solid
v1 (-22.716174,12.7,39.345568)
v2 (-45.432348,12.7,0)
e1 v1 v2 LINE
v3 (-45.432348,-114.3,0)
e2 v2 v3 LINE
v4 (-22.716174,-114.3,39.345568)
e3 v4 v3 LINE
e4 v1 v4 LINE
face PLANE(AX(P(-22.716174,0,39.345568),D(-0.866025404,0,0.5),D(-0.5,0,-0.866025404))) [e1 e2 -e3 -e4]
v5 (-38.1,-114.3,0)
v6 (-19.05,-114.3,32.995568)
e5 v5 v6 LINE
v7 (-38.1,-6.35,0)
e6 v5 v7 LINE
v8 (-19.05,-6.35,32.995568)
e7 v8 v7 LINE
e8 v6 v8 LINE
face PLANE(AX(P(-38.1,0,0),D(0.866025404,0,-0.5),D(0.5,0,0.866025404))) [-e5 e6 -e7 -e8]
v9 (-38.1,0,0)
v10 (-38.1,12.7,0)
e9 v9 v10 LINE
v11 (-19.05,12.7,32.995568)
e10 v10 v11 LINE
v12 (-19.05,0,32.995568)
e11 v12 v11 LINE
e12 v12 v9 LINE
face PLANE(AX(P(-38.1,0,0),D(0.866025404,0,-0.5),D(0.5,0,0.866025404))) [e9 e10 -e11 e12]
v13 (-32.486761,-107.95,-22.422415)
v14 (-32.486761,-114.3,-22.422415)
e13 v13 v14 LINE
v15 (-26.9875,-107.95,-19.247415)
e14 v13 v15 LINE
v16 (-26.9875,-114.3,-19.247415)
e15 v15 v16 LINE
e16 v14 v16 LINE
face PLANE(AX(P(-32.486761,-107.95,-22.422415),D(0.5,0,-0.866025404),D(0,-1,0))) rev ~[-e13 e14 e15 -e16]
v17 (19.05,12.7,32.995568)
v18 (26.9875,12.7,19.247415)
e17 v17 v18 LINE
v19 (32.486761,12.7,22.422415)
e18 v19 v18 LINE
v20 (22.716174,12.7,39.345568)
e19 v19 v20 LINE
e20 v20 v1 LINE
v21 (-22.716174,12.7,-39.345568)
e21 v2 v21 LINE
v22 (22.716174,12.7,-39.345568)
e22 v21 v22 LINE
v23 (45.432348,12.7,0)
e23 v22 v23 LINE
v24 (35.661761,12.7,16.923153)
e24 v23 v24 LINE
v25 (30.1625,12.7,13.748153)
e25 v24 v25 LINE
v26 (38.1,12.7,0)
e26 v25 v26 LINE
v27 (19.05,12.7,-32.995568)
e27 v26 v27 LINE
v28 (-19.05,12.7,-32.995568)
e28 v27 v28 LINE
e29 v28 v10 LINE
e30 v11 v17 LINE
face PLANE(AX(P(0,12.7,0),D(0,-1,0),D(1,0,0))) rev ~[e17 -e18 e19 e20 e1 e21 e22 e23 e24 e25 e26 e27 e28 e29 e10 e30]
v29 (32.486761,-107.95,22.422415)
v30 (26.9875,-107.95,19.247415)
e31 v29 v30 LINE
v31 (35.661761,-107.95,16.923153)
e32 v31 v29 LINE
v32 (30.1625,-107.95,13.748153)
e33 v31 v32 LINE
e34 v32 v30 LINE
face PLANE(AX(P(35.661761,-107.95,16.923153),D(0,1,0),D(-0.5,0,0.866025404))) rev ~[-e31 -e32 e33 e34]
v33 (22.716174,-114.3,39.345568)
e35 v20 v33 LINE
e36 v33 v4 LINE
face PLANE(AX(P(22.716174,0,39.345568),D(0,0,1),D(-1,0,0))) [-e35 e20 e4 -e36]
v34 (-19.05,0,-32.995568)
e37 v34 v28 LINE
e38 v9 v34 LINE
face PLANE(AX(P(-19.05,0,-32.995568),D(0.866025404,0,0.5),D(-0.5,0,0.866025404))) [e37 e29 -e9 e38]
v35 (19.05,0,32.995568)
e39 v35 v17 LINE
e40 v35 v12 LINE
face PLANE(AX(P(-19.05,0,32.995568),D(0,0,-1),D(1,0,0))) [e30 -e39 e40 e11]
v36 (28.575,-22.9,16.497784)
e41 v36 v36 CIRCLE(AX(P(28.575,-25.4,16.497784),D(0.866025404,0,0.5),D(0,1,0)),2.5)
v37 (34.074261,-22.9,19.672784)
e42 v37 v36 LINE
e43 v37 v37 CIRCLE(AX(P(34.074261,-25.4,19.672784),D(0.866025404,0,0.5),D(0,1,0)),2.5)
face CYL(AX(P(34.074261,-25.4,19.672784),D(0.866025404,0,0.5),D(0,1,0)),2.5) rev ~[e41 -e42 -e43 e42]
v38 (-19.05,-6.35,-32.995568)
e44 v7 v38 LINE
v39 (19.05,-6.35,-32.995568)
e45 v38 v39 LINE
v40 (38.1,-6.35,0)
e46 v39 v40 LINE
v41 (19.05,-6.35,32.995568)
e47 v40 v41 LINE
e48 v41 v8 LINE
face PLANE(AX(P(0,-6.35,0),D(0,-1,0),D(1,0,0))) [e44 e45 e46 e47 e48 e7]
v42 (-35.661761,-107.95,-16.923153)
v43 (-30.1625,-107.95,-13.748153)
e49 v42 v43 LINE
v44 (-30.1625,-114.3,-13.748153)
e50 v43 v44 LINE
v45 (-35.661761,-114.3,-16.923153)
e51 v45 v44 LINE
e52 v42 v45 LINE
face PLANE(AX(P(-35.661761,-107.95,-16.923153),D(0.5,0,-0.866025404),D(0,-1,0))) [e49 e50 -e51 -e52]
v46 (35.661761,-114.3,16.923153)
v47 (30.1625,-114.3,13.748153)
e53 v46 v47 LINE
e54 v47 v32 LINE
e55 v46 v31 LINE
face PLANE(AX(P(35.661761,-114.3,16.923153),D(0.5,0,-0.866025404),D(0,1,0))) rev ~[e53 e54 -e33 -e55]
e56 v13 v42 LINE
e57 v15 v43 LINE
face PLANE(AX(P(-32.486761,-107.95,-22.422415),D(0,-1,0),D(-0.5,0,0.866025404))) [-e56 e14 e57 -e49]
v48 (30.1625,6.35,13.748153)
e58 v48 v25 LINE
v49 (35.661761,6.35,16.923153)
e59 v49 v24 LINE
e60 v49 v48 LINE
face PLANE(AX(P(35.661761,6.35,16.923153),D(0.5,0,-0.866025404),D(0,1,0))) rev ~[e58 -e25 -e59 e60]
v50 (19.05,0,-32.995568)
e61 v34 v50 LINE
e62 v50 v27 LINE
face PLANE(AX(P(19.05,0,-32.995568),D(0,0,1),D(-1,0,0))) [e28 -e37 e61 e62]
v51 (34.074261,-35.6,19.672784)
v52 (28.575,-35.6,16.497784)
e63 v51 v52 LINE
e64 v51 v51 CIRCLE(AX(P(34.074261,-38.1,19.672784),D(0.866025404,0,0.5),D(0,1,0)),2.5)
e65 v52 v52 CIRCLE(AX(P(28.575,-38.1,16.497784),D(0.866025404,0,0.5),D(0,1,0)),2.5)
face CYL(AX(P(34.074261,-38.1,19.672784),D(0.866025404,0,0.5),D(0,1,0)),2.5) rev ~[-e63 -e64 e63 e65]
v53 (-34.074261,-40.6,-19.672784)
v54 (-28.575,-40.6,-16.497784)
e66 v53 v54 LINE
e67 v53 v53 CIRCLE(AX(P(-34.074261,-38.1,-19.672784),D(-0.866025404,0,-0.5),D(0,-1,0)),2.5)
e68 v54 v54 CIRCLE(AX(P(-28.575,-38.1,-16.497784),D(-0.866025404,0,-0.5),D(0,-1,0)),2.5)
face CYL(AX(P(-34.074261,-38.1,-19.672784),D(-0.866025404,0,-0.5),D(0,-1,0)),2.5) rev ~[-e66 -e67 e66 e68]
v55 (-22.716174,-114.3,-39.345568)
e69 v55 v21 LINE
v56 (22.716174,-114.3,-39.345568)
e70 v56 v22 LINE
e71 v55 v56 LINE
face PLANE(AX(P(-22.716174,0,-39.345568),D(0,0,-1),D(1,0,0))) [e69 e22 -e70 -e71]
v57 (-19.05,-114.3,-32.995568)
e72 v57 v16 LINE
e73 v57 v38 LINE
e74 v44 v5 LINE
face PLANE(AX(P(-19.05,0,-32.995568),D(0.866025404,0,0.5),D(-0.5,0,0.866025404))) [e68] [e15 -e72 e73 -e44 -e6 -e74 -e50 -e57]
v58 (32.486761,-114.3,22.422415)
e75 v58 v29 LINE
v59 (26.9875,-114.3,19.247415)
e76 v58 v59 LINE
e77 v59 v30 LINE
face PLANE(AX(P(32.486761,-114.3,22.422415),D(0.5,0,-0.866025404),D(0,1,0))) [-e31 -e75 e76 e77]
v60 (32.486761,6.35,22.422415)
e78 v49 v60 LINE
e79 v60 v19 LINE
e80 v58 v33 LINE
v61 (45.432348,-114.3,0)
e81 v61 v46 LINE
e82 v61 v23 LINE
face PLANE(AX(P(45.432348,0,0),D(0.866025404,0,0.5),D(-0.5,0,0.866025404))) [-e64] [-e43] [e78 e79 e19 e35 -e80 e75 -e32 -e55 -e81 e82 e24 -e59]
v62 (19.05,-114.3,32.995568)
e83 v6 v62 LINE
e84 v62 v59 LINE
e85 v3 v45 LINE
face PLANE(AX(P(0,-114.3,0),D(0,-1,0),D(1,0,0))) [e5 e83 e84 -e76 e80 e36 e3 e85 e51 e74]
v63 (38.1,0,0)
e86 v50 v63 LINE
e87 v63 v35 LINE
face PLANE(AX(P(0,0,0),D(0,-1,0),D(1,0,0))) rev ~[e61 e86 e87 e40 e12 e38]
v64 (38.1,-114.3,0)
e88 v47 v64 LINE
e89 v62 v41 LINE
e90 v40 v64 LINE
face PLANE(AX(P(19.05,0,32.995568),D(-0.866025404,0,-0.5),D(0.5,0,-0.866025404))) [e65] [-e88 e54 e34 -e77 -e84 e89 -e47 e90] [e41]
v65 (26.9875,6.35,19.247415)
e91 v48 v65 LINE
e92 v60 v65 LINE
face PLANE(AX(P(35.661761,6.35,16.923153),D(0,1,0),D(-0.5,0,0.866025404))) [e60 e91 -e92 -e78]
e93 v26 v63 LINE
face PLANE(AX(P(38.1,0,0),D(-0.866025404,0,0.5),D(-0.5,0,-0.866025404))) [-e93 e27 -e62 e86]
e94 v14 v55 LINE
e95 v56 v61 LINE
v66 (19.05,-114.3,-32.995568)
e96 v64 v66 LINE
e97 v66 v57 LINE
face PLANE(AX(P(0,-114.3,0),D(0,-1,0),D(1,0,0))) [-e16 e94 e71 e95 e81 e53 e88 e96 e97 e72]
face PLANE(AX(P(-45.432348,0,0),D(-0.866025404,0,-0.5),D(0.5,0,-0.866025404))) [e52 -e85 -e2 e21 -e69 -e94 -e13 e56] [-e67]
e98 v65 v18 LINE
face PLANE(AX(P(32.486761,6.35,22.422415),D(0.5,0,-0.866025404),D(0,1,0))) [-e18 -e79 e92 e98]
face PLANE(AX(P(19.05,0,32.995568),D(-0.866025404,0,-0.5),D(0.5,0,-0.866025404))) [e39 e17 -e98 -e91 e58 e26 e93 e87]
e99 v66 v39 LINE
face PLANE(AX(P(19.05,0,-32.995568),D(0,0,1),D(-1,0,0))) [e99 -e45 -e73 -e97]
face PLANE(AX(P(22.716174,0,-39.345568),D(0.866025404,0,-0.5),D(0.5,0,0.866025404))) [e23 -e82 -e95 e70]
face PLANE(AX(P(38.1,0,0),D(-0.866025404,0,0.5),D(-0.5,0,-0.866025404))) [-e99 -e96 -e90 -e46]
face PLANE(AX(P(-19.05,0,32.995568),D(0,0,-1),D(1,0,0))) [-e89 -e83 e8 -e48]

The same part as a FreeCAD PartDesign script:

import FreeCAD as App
import Part
import Sketcher

V = App.Vector
Q = App.Units.Quantity

doc = App.newDocument("Part")
body = doc.addObject("PartDesign::Body", "Body")

# Sketch on XZ plane
sketch1 = body.newObject("Sketcher::SketchObject", "Sketch")
sketch1.AttachmentSupport = (doc.getObject("XZ_Plane"), [""])
sketch1.MapMode = "FlatFace"
sketch1.addGeometry([
    Part.LineSegment(V(45.432348, 0, 0), V(22.716174, 39.345568, 0)),  # 0
    Part.LineSegment(V(22.716174, 39.345568, 0), V(-22.716174, 39.345568, 0)),  # 1
    Part.LineSegment(V(-22.716174, 39.345568, 0), V(-45.432348, 0, 0)),  # 2
    Part.LineSegment(V(-45.432348, 0, 0), V(-22.716174, -39.345568, 0)),  # 3
    Part.LineSegment(V(-22.716174, -39.345568, 0), V(22.716174, -39.345568, 0)),  # 4
    Part.LineSegment(V(22.716174, -39.345568, 0), V(45.432348, 0, 0)),  # 5
    Part.LineSegment(V(19.05, 32.995568, 0), V(38.1, 0, 0)),  # 6
    Part.LineSegment(V(38.1, 0, 0), V(19.05, -32.995568, 0)),  # 7
    Part.LineSegment(V(19.05, -32.995568, 0), V(-19.05, -32.995568, 0)),  # 8
    Part.LineSegment(V(-19.05, -32.995568, 0), V(-38.1, 0, 0)),  # 9
    Part.LineSegment(V(-38.1, 0, 0), V(-19.05, 32.995568, 0)),  # 10
    Part.LineSegment(V(-19.05, 32.995568, 0), V(19.05, 32.995568, 0)),  # 11
], False)
sketch1.addConstraint([
    Sketcher.Constraint("Coincident", 0, 2, 1, 1),
    Sketcher.Constraint("Coincident", 1, 2, 2, 1),
    Sketcher.Constraint("Coincident", 2, 2, 3, 1),
    Sketcher.Constraint("Coincident", 3, 2, 4, 1),
    Sketcher.Constraint("Coincident", 4, 2, 5, 1),
    Sketcher.Constraint("Coincident", 5, 2, 0, 1),
    Sketcher.Constraint("Coincident", 6, 2, 7, 1),
    Sketcher.Constraint("Coincident", 7, 2, 8, 1),
    Sketcher.Constraint("Coincident", 8, 2, 9, 1),
    Sketcher.Constraint("Coincident", 9, 2, 10, 1),
    Sketcher.Constraint("Coincident", 10, 2, 11, 1),
    Sketcher.Constraint("Coincident", 11, 2, 6, 1),
    Sketcher.Constraint("Horizontal", 1),
    Sketcher.Constraint("Horizontal", 4),
    Sketcher.Constraint("Horizontal", 8),
    Sketcher.Constraint("Horizontal", 11),
    Sketcher.Constraint("Symmetric", 0, 2, 3, 2, -1, 1),
    Sketcher.Constraint("Symmetric", 2, 2, 5, 2, -1, 1),
    Sketcher.Constraint("Symmetric", 6, 2, 9, 2, -1, 1),
    Sketcher.Constraint("Symmetric", 7, 2, 10, 2, -1, 1),
    Sketcher.Constraint("PointOnObject", 2, 2, -1),
    Sketcher.Constraint("PointOnObject", 6, 2, -1),
    Sketcher.Constraint("Parallel", 2, 5),
    Sketcher.Constraint("Parallel", 3, 6),
    Sketcher.Constraint("Parallel", 5, 7),
    Sketcher.Constraint("Parallel", 6, 9),
    Sketcher.Constraint("Vertical", 1, 2, 3, 2),
    Sketcher.Constraint("DistanceX", 8, 2, 8, 1, Q("1.5 in")),
    Sketcher.Constraint("Angle", 0, Q("120 deg")),
    Sketcher.Constraint("Distance", 6, Q("1.5 in")),
    Sketcher.Constraint("DistanceY", 4, 2, 7, 2, Q("0.25 in")),
    Sketcher.Constraint("DistanceX", 1, 2, 1, 1, Q("45.432348 mm")),
])
pad1 = body.newObject("PartDesign::Pad", "Pad")
pad1.Profile = sketch1
pad1.Length = Q("4.5 in")

# Sketch on XZ plane
sketch2 = body.newObject("Sketcher::SketchObject", "Sketch001")
sketch2.AttachmentSupport = (doc.getObject("XZ_Plane"), [""])
sketch2.MapMode = "FlatFace"
sketch2.addGeometry([
    Part.LineSegment(V(45.432348, 0, 0), V(22.716174, 39.345568, 0)),  # 0
    Part.LineSegment(V(22.716174, 39.345568, 0), V(-22.716174, 39.345568, 0)),  # 1
    Part.LineSegment(V(-22.716174, 39.345568, 0), V(-45.432348, 0, 0)),  # 2
    Part.LineSegment(V(-45.432348, 0, 0), V(-22.716174, -39.345568, 0)),  # 3
    Part.LineSegment(V(-22.716174, -39.345568, 0), V(22.716174, -39.345568, 0)),  # 4
    Part.LineSegment(V(22.716174, -39.345568, 0), V(45.432348, 0, 0)),  # 5
    Part.LineSegment(V(19.05, 32.995568, 0), V(38.1, 0, 0)),  # 6
    Part.LineSegment(V(38.1, 0, 0), V(19.05, -32.995568, 0)),  # 7
    Part.LineSegment(V(19.05, -32.995568, 0), V(-19.05, -32.995568, 0)),  # 8
    Part.LineSegment(V(-19.05, -32.995568, 0), V(-38.1, 0, 0)),  # 9
    Part.LineSegment(V(-38.1, 0, 0), V(-19.05, 32.995568, 0)),  # 10
    Part.LineSegment(V(-19.05, 32.995568, 0), V(19.05, 32.995568, 0)),  # 11
], False)
sketch2.addConstraint([
    Sketcher.Constraint("Coincident", 0, 2, 1, 1),
    Sketcher.Constraint("Coincident", 1, 2, 2, 1),
    Sketcher.Constraint("Coincident", 2, 2, 3, 1),
    Sketcher.Constraint("Coincident", 3, 2, 4, 1),
    Sketcher.Constraint("Coincident", 4, 2, 5, 1),
    Sketcher.Constraint("Coincident", 5, 2, 0, 1),
    Sketcher.Constraint("Coincident", 6, 2, 7, 1),
    Sketcher.Constraint("Coincident", 7, 2, 8, 1),
    Sketcher.Constraint("Coincident", 8, 2, 9, 1),
    Sketcher.Constraint("Coincident", 9, 2, 10, 1),
    Sketcher.Constraint("Coincident", 10, 2, 11, 1),
    Sketcher.Constraint("Coincident", 11, 2, 6, 1),
    Sketcher.Constraint("Horizontal", 1),
    Sketcher.Constraint("Horizontal", 4),
    Sketcher.Constraint("Horizontal", 8),
    Sketcher.Constraint("Horizontal", 11),
    Sketcher.Constraint("Symmetric", 0, 2, 3, 2, -1, 1),
    Sketcher.Constraint("Symmetric", 2, 2, 5, 2, -1, 1),
    Sketcher.Constraint("Symmetric", 6, 2, 9, 2, -1, 1),
    Sketcher.Constraint("Symmetric", 7, 2, 10, 2, -1, 1),
    Sketcher.Constraint("PointOnObject", 2, 2, -1),
    Sketcher.Constraint("PointOnObject", 6, 2, -1),
    Sketcher.Constraint("Parallel", 2, 5),
    Sketcher.Constraint("Parallel", 3, 6),
    Sketcher.Constraint("Parallel", 5, 7),
    Sketcher.Constraint("Parallel", 6, 9),
    Sketcher.Constraint("Vertical", 1, 2, 3, 2),
    Sketcher.Constraint("DistanceX", 8, 2, 8, 1, Q("1.5 in")),
    Sketcher.Constraint("Angle", 0, Q("120 deg")),
    Sketcher.Constraint("Distance", 6, Q("1.5 in")),
    Sketcher.Constraint("DistanceY", 4, 2, 7, 2, Q("0.25 in")),
    Sketcher.Constraint("DistanceX", 1, 2, 1, 1, Q("45.432348 mm")),
])
pad2 = body.newObject("PartDesign::Pad", "Pad001")
pad2.Profile = sketch2
pad2.Length = Q("0.5 in")
pad2.Reversed = True

# Sketch on XZ plane
sketch3 = body.newObject("Sketcher::SketchObject", "Sketch002")
sketch3.AttachmentSupport = (doc.getObject("XZ_Plane"), [""])
sketch3.MapMode = "FlatFace"
sketch3.addGeometry([
    Part.LineSegment(V(19.05, -32.995568, 0), V(38.1, 0, 0)),  # 0
    Part.LineSegment(V(38.1, 0, 0), V(19.05, 32.995568, 0)),  # 1
    Part.LineSegment(V(19.05, 32.995568, 0), V(-19.05, 32.995568, 0)),  # 2
    Part.LineSegment(V(-19.05, 32.995568, 0), V(-38.1, 0, 0)),  # 3
    Part.LineSegment(V(-38.1, 0, 0), V(-19.05, -32.995568, 0)),  # 4
    Part.LineSegment(V(-19.05, -32.995568, 0), V(19.05, -32.995568, 0)),  # 5
], False)
sketch3.addConstraint([
    Sketcher.Constraint("Coincident", 0, 2, 1, 1),
    Sketcher.Constraint("Coincident", 1, 2, 2, 1),
    Sketcher.Constraint("Coincident", 2, 2, 3, 1),
    Sketcher.Constraint("Coincident", 3, 2, 4, 1),
    Sketcher.Constraint("Coincident", 4, 2, 5, 1),
    Sketcher.Constraint("Coincident", 5, 2, 0, 1),
    Sketcher.Constraint("Horizontal", 2),
    Sketcher.Constraint("Horizontal", 5),
    Sketcher.Constraint("Symmetric", 0, 2, 3, 2, -1, 1),
    Sketcher.Constraint("Symmetric", 1, 2, 4, 2, -1, 1),
    Sketcher.Constraint("PointOnObject", 0, 2, -1),
    Sketcher.Constraint("Parallel", 0, 3),
    Sketcher.Constraint("Vertical", 2, 2, 4, 2),
    Sketcher.Constraint("DistanceX", 2, 2, 2, 1, Q("1.5 in")),
    Sketcher.Constraint("Angle", 0, Q("60 deg")),
    Sketcher.Constraint("DistanceX", 3, 2, 0, 2, Q("3 in")),
])
pad3 = body.newObject("PartDesign::Pad", "Pad002")
pad3.Profile = sketch3
pad3.Length = Q("0.25 in")

# Sketch on an angled plane
sketch4 = body.newObject("Sketcher::SketchObject", "Sketch003")
sketch4.Placement = App.Placement(V(34.074261, 0, 19.672784), App.Rotation(V(0, 1, 0), V(-0.5, 0, 0.866025404), V(0.866025404, 0, 0.5), "ZXY"))
sketch4.addGeometry([
    Part.LineSegment(V(-114.3, 3.175, 0), V(-114.3, -3.175, 0)),
    Part.LineSegment(V(-114.3, -3.175, 0), V(-107.95, -3.175, 0)),
    Part.LineSegment(V(-107.95, -3.175, 0), V(-107.95, 3.175, 0)),
    Part.LineSegment(V(-107.95, 3.175, 0), V(-114.3, 3.175, 0)),
], False)
sketch4.addConstraint([
    Sketcher.Constraint("Coincident", 0, 2, 1, 1),
    Sketcher.Constraint("Coincident", 1, 2, 2, 1),
    Sketcher.Constraint("Coincident", 2, 2, 3, 1),
    Sketcher.Constraint("Coincident", 3, 2, 0, 1),
    Sketcher.Constraint("Vertical", 0),
    Sketcher.Constraint("Horizontal", 1),
    Sketcher.Constraint("Vertical", 2),
    Sketcher.Constraint("Horizontal", 3),
    Sketcher.Constraint("Equal", 3, 0),
    Sketcher.Constraint("DistanceX", 1, 1, 1, 2, Q("0.25 in")),
    Sketcher.Constraint("DistanceX", 0, 2, -1, 1, Q("4.5 in")),
    Sketcher.Constraint("DistanceY", 0, 2, -1, 1, Q("0.125 in")),
])
pocket1 = body.newObject("PartDesign::Pocket", "Pocket")
pocket1.Profile = sketch4
pocket1.Length = Q("0.25 in")

# Sketch on an angled plane
sketch5 = body.newObject("Sketcher::SketchObject", "Sketch004")
sketch5.Placement = App.Placement(V(-34.074261, 0, -19.672784), App.Rotation(V(0, -1, 0), V(-0.5, 0, 0.866025404), V(-0.866025404, 0, -0.5), "ZXY"))
sketch5.addGeometry([
    Part.LineSegment(V(107.95, 3.175, 0), V(107.95, -3.175, 0)),
    Part.LineSegment(V(107.95, -3.175, 0), V(114.3, -3.175, 0)),
    Part.LineSegment(V(114.3, -3.175, 0), V(114.3, 3.175, 0)),
    Part.LineSegment(V(114.3, 3.175, 0), V(107.95, 3.175, 0)),
], False)
sketch5.addConstraint([
    Sketcher.Constraint("Coincident", 0, 2, 1, 1),
    Sketcher.Constraint("Coincident", 1, 2, 2, 1),
    Sketcher.Constraint("Coincident", 2, 2, 3, 1),
    Sketcher.Constraint("Coincident", 3, 2, 0, 1),
    Sketcher.Constraint("Vertical", 0),
    Sketcher.Constraint("Horizontal", 1),
    Sketcher.Constraint("Vertical", 2),
    Sketcher.Constraint("Horizontal", 3),
    Sketcher.Constraint("Equal", 3, 0),
    Sketcher.Constraint("DistanceX", 1, 1, 1, 2, Q("0.25 in")),
    Sketcher.Constraint("DistanceX", -1, 1, 1, 2, Q("4.5 in")),
    Sketcher.Constraint("DistanceY", 0, 2, -1, 1, Q("0.125 in")),
])
pocket2 = body.newObject("PartDesign::Pocket", "Pocket001")
pocket2.Profile = sketch5
pocket2.Length = Q("0.25 in")

# Sketch on an angled plane
sketch6 = body.newObject("Sketcher::SketchObject", "Sketch005")
sketch6.Placement = App.Placement(V(-34.074261, 0, -19.672784), App.Rotation(V(0, -1, 0), V(-0.5, 0, 0.866025404), V(-0.866025404, 0, -0.5), "ZXY"))
sketch6.addGeometry(Part.Circle(V(38.1, 0, 0), V(0, 0, 1), 2.5), False)
sketch6.addConstraint([
    Sketcher.Constraint("PointOnObject", 0, 3, -1),
    Sketcher.Constraint("DistanceX", -1, 1, 0, 3, Q("1.5 in")),
    Sketcher.Constraint("Diameter", 0, Q("5 mm")),
])
pocket3 = body.newObject("PartDesign::Pocket", "Pocket002")
pocket3.Profile = sketch6
pocket3.Length = Q("0.25 in")

# Sketch on an angled plane
sketch7 = body.newObject("Sketcher::SketchObject", "Sketch006")
sketch7.Placement = App.Placement(V(34.074261, 0, 19.672784), App.Rotation(V(0, 1, 0), V(-0.5, 0, 0.866025404), V(0.866025404, 0, 0.5), "ZXY"))
sketch7.addGeometry([
    Part.Circle(V(-38.1, 0, 0), V(0, 0, 1), 2.5),
    Part.Circle(V(-25.4, 0, 0), V(0, 0, 1), 2.5),
], False)
sketch7.addConstraint([
    Sketcher.Constraint("Equal", 0, 1),
    Sketcher.Constraint("PointOnObject", 0, 3, -1),
    Sketcher.Constraint("PointOnObject", 1, 3, -1),
    Sketcher.Constraint("DistanceX", 1, 3, -1, 1, Q("1 in")),
    Sketcher.Constraint("DistanceX", 0, 3, -1, 1, Q("1.5 in")),
    Sketcher.Constraint("Diameter", 0, Q("5 mm")),
])
pocket4 = body.newObject("PartDesign::Pocket", "Pocket003")
pocket4.Profile = sketch7
pocket4.Length = Q("0.25 in")

# Sketch on an angled plane
sketch8 = body.newObject("Sketcher::SketchObject", "Sketch007")
sketch8.Placement = App.Placement(V(34.074261, 0, 19.672784), App.Rotation(V(0, 1, 0), V(-0.5, 0, 0.866025404), V(0.866025404, 0, 0.5), "ZXY"))
sketch8.addGeometry([
    Part.LineSegment(V(6.35, 3.175, 0), V(6.35, -3.175, 0)),
    Part.LineSegment(V(6.35, -3.175, 0), V(12.7, -3.175, 0)),
    Part.LineSegment(V(12.7, -3.175, 0), V(12.7, 3.175, 0)),
    Part.LineSegment(V(12.7, 3.175, 0), V(6.35, 3.175, 0)),
], False)
sketch8.addConstraint([
    Sketcher.Constraint("Coincident", 0, 2, 1, 1),
    Sketcher.Constraint("Coincident", 1, 2, 2, 1),
    Sketcher.Constraint("Coincident", 2, 2, 3, 1),
    Sketcher.Constraint("Coincident", 3, 2, 0, 1),
    Sketcher.Constraint("Vertical", 0),
    Sketcher.Constraint("Horizontal", 1),
    Sketcher.Constraint("Vertical", 2),
    Sketcher.Constraint("Horizontal", 3),
    Sketcher.Constraint("Equal", 3, 0),
    Sketcher.Constraint("DistanceX", 1, 1, 1, 2, Q("0.25 in")),
    Sketcher.Constraint("DistanceX", -1, 1, 1, 2, Q("0.5 in")),
    Sketcher.Constraint("DistanceY", 0, 2, -1, 1, Q("0.125 in")),
])
pocket5 = body.newObject("PartDesign::Pocket", "Pocket004")
pocket5.Profile = sketch8
pocket5.Length = Q("0.25 in")

doc.recompute()
